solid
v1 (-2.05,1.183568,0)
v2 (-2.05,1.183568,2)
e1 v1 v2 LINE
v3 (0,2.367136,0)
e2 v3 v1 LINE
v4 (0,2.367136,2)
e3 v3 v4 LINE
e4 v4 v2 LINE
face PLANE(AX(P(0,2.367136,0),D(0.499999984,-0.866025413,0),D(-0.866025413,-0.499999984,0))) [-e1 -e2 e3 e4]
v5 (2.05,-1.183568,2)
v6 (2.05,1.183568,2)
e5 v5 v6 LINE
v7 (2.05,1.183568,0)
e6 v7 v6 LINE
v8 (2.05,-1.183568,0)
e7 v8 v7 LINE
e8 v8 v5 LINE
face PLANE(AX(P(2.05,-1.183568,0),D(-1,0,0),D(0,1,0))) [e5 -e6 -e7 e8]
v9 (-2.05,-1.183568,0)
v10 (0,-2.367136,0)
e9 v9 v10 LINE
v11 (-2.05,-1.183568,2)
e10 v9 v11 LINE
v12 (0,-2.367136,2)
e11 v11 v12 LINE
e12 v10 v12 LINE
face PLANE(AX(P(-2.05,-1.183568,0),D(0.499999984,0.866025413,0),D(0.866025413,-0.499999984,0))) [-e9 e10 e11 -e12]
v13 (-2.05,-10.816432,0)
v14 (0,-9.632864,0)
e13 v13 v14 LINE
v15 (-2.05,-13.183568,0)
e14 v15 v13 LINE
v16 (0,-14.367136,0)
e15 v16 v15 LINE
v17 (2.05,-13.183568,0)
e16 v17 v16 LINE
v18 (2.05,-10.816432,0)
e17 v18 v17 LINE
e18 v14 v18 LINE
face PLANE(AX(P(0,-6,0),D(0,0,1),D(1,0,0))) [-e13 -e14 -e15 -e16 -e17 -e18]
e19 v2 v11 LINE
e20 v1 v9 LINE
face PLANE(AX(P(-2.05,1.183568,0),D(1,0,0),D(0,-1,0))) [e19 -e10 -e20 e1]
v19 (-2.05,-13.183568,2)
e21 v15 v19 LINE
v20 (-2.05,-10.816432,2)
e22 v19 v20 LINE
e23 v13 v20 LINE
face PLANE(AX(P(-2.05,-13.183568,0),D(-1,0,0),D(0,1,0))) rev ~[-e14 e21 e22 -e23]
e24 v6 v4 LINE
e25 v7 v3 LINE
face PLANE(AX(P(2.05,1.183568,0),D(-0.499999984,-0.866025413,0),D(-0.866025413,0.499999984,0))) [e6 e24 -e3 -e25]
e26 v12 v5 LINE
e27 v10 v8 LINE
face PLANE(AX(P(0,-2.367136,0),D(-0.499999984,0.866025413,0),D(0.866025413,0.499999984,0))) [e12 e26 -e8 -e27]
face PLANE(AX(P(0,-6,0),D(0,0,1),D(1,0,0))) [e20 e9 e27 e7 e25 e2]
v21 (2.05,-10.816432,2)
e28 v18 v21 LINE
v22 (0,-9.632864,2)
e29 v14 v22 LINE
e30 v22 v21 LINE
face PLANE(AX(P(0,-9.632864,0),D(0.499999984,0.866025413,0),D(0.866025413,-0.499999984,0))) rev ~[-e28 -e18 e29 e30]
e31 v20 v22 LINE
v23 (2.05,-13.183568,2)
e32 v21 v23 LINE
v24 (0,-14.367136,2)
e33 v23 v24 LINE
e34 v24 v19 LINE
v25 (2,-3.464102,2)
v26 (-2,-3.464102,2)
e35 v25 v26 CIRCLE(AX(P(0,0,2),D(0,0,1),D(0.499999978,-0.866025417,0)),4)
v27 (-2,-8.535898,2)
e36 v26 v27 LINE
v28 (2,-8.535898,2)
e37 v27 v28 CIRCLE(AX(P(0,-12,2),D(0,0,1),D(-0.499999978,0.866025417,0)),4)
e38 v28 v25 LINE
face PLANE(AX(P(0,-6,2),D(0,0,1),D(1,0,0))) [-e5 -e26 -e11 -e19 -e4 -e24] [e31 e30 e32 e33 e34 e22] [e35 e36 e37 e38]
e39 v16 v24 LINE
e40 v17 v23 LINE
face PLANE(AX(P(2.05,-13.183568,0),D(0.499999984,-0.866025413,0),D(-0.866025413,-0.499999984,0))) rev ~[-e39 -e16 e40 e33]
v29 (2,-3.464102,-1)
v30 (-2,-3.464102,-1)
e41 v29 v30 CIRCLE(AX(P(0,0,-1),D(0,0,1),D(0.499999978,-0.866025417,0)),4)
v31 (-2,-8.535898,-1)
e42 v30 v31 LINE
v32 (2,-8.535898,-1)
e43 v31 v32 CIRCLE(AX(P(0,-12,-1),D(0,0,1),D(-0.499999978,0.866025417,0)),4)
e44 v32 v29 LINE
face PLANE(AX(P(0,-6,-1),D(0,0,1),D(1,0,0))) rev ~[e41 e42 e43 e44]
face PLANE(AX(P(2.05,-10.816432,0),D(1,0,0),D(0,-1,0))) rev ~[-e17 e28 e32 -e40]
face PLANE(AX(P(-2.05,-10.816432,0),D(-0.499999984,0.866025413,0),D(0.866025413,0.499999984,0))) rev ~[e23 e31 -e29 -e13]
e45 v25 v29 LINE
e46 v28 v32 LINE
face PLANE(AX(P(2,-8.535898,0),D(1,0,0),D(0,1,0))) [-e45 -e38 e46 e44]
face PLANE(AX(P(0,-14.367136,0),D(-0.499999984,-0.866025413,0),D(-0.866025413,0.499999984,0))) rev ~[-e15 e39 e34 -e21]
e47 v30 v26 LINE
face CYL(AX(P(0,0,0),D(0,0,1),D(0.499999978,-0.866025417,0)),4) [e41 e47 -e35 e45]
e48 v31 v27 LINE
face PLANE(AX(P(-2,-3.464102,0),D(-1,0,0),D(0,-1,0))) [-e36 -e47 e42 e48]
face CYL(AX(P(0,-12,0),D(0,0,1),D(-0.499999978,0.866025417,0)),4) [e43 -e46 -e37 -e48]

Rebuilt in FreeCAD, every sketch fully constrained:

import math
import FreeCAD as App
import Part
import Sketcher

V = App.Vector
Q = App.Units.Quantity

doc = App.newDocument("Part")
body = doc.addObject("PartDesign::Body", "Body")

# Sketch on XY plane
sketch1 = body.newObject("Sketcher::SketchObject", "Sketch")
sketch1.AttachmentSupport = (doc.getObject("XY_Plane"), [""])
sketch1.MapMode = "FlatFace"
sketch1.addGeometry([
    Part.ArcOfCircle(Part.Circle(V(0, 0, 0), V(0, 0, 1), 4), math.radians(-60.000001), math.radians(240.000001)),  # 0
    Part.LineSegment(V(-2, -3.464102, 0), V(-2, -8.535898, 0)),  # 1
    Part.ArcOfCircle(Part.Circle(V(0, -12, 0), V(0, 0, 1), 4), math.radians(119.999999), math.radians(420.000001)),  # 2
    Part.LineSegment(V(2, -8.535898, 0), V(2, -3.464102, 0)),  # 3
    Part.LineSegment(V(2.05, -13.183568, 0), V(0, -14.367136, 0)),  # 4
    Part.LineSegment(V(0, -14.367136, 0), V(-2.05, -13.183568, 0)),  # 5
    Part.LineSegment(V(-2.05, -13.183568, 0), V(-2.05, -10.816432, 0)),  # 6
    Part.LineSegment(V(-2.05, -10.816432, 0), V(0, -9.632864, 0)),  # 7
    Part.LineSegment(V(0, -9.632864, 0), V(2.05, -10.816432, 0)),  # 8
    Part.LineSegment(V(2.05, -10.816432, 0), V(2.05, -13.183568, 0)),  # 9
    Part.LineSegment(V(-2.05, 1.183568, 0), V(0, 2.367136, 0)),  # 10
    Part.LineSegment(V(0, 2.367136, 0), V(2.05, 1.183568, 0)),  # 11
    Part.LineSegment(V(2.05, 1.183568, 0), V(2.05, -1.183568, 0)),  # 12
    Part.LineSegment(V(2.05, -1.183568, 0), V(0, -2.367136, 0)),  # 13
    Part.LineSegment(V(0, -2.367136, 0), V(-2.05, -1.183568, 0)),  # 14
    Part.LineSegment(V(-2.05, -1.183568, 0), V(-2.05, 1.183568, 0)),  # 15
], False)
sketch1.addConstraint([
    Sketcher.Constraint("Coincident", 0, 2, 1, 1),
    Sketcher.Constraint("Coincident", 1, 2, 2, 1),
    Sketcher.Constraint("Coincident", 2, 2, 3, 1),
    Sketcher.Constraint("Coincident", 3, 2, 0, 1),
    Sketcher.Constraint("Coincident", 4, 2, 5, 1),
    Sketcher.Constraint("Coincident", 5, 2, 6, 1),
    Sketcher.Constraint("Coincident", 6, 2, 7, 1),
    Sketcher.Constraint("Coincident", 7, 2, 8, 1),
    Sketcher.Constraint("Coincident", 8, 2, 9, 1),
    Sketcher.Constraint("Coincident", 9, 2, 4, 1),
    Sketcher.Constraint("Coincident", 10, 2, 11, 1),
    Sketcher.Constraint("Coincident", 11, 2, 12, 1),
    Sketcher.Constraint("Coincident", 12, 2, 13, 1),
    Sketcher.Constraint("Coincident", 13, 2, 14, 1),
    Sketcher.Constraint("Coincident", 14, 2, 15, 1),
    Sketcher.Constraint("Coincident", 15, 2, 10, 1),
    Sketcher.Constraint("Vertical", 1),
    Sketcher.Constraint("Vertical", 3),
    Sketcher.Constraint("Vertical", 6),
    Sketcher.Constraint("Vertical", 9),
    Sketcher.Constraint("Vertical", 12),
    Sketcher.Constraint("Vertical", 15),
    Sketcher.Constraint("Coincident", 0, 3, -1, 1),
    Sketcher.Constraint("Equal", 0, 2),
    Sketcher.Constraint("Symmetric", 10, 2, 13, 2, -1, 1),
    Sketcher.Constraint("Symmetric", 11, 2, 14, 2, -1, 1),
    Sketcher.Constraint("Symmetric", 1, 2, 2, 2, -2),
    Sketcher.Constraint("Symmetric", 6, 2, 8, 2, -2),
    Sketcher.Constraint("PointOnObject", 4, 2, -2),
    Sketcher.Constraint("PointOnObject", 7, 2, -2),
    Sketcher.Constraint("PointOnObject", 10, 2, -2),
    Sketcher.Constraint("Parallel", 4, 7),
    Sketcher.Constraint("Parallel", 5, 8),
    Sketcher.Constraint("Parallel", 7, 10),
    Sketcher.Constraint("Parallel", 8, 11),
    Sketcher.Constraint("Parallel", 10, 13),
    Sketcher.Constraint("Vertical", 9, 2, 11, 2),
    Sketcher.Constraint("Equal", 9, 12),
    Sketcher.Constraint("Radius", 0, Q("4 mm")),
    Sketcher.Constraint("Angle", 4, Q("-150.000001 deg")),
    Sketcher.Constraint("DistanceY", 2, 3, -1, 1, Q("12 mm")),
    Sketcher.Constraint("DistanceX", 0, 2, -1, 1, Q("2 mm")),
    Sketcher.Constraint("DistanceX", 6, 2, 8, 2, Q("4.1 mm")),
    Sketcher.Constraint("DistanceY", 6, 1, 6, 2, Q("2.367136 mm")),
    Sketcher.Constraint("DistanceY", 4, 2, 1, 2, Q("5.831238 mm")),
])
pad1 = body.newObject("PartDesign::Pad", "Pad")
pad1.Profile = sketch1
pad1.Length = 2

# Sketch on an angled plane
sketch2 = body.newObject("Sketcher::SketchObject", "Sketch001")
sketch2.Placement = App.Placement(V(6.221152, -10.775352, 0), App.Rotation(V(-0.866025303, -0.500000175, 0), V(0, 0, 1), V(-0.500000175, 0.866025303, 0), "ZXY"))
sketch2.addGeometry(Part.Circle(V(0, 0, 0), V(0, 0, 1), 1.3), False)
sketch2.addConstraint([
    Sketcher.Constraint("Coincident", 0, 3, -1, 1),
    Sketcher.Constraint("Diameter", 0, Q("2.6 mm")),
])
pocket1 = body.newObject("PartDesign::Pocket", "Pocket")
pocket1.Profile = sketch2
pocket1.Type = "ThroughAll"

# Sketch on XY plane
sketch3 = body.newObject("Sketcher::SketchObject", "Sketch002")
sketch3.AttachmentSupport = (doc.getObject("XY_Plane"), [""])
sketch3.MapMode = "FlatFace"
sketch3.addGeometry([
    Part.ArcOfCircle(Part.Circle(V(0, 0, 0), V(0, 0, 1), 4), math.radians(-60.000001), math.radians(240.000001)),
    Part.LineSegment(V(-2, -3.464102, 0), V(-2, -8.535898, 0)),
    Part.ArcOfCircle(Part.Circle(V(0, -12, 0), V(0, 0, 1), 4), math.radians(119.999999), math.radians(420.000001)),
    Part.LineSegment(V(2, -8.535898, 0), V(2, -3.464102, 0)),
], False)
sketch3.addConstraint([
    Sketcher.Constraint("Coincident", 0, 2, 1, 1),
    Sketcher.Constraint("Coincident", 1, 2, 2, 1),
    Sketcher.Constraint("Coincident", 2, 2, 3, 1),
    Sketcher.Constraint("Coincident", 3, 2, 0, 1),
    Sketcher.Constraint("Vertical", 1),
    Sketcher.Constraint("Vertical", 3),
    Sketcher.Constraint("Coincident", 0, 3, -1, 1),
    Sketcher.Constraint("Equal", 0, 2),
    Sketcher.Constraint("Symmetric", 1, 2, 2, 2, -2),
    Sketcher.Constraint("Radius", 0, Q("4 mm")),
    Sketcher.Constraint("DistanceY", 2, 3, -1, 1, Q("12 mm")),
    Sketcher.Constraint("DistanceX", 0, 2, -1, 1, Q("2 mm")),
])
pad2 = body.newObject("PartDesign::Pad", "Pad001")
pad2.Profile = sketch3
pad2.Length = 1
pad2.Reversed = True

doc.recompute()
